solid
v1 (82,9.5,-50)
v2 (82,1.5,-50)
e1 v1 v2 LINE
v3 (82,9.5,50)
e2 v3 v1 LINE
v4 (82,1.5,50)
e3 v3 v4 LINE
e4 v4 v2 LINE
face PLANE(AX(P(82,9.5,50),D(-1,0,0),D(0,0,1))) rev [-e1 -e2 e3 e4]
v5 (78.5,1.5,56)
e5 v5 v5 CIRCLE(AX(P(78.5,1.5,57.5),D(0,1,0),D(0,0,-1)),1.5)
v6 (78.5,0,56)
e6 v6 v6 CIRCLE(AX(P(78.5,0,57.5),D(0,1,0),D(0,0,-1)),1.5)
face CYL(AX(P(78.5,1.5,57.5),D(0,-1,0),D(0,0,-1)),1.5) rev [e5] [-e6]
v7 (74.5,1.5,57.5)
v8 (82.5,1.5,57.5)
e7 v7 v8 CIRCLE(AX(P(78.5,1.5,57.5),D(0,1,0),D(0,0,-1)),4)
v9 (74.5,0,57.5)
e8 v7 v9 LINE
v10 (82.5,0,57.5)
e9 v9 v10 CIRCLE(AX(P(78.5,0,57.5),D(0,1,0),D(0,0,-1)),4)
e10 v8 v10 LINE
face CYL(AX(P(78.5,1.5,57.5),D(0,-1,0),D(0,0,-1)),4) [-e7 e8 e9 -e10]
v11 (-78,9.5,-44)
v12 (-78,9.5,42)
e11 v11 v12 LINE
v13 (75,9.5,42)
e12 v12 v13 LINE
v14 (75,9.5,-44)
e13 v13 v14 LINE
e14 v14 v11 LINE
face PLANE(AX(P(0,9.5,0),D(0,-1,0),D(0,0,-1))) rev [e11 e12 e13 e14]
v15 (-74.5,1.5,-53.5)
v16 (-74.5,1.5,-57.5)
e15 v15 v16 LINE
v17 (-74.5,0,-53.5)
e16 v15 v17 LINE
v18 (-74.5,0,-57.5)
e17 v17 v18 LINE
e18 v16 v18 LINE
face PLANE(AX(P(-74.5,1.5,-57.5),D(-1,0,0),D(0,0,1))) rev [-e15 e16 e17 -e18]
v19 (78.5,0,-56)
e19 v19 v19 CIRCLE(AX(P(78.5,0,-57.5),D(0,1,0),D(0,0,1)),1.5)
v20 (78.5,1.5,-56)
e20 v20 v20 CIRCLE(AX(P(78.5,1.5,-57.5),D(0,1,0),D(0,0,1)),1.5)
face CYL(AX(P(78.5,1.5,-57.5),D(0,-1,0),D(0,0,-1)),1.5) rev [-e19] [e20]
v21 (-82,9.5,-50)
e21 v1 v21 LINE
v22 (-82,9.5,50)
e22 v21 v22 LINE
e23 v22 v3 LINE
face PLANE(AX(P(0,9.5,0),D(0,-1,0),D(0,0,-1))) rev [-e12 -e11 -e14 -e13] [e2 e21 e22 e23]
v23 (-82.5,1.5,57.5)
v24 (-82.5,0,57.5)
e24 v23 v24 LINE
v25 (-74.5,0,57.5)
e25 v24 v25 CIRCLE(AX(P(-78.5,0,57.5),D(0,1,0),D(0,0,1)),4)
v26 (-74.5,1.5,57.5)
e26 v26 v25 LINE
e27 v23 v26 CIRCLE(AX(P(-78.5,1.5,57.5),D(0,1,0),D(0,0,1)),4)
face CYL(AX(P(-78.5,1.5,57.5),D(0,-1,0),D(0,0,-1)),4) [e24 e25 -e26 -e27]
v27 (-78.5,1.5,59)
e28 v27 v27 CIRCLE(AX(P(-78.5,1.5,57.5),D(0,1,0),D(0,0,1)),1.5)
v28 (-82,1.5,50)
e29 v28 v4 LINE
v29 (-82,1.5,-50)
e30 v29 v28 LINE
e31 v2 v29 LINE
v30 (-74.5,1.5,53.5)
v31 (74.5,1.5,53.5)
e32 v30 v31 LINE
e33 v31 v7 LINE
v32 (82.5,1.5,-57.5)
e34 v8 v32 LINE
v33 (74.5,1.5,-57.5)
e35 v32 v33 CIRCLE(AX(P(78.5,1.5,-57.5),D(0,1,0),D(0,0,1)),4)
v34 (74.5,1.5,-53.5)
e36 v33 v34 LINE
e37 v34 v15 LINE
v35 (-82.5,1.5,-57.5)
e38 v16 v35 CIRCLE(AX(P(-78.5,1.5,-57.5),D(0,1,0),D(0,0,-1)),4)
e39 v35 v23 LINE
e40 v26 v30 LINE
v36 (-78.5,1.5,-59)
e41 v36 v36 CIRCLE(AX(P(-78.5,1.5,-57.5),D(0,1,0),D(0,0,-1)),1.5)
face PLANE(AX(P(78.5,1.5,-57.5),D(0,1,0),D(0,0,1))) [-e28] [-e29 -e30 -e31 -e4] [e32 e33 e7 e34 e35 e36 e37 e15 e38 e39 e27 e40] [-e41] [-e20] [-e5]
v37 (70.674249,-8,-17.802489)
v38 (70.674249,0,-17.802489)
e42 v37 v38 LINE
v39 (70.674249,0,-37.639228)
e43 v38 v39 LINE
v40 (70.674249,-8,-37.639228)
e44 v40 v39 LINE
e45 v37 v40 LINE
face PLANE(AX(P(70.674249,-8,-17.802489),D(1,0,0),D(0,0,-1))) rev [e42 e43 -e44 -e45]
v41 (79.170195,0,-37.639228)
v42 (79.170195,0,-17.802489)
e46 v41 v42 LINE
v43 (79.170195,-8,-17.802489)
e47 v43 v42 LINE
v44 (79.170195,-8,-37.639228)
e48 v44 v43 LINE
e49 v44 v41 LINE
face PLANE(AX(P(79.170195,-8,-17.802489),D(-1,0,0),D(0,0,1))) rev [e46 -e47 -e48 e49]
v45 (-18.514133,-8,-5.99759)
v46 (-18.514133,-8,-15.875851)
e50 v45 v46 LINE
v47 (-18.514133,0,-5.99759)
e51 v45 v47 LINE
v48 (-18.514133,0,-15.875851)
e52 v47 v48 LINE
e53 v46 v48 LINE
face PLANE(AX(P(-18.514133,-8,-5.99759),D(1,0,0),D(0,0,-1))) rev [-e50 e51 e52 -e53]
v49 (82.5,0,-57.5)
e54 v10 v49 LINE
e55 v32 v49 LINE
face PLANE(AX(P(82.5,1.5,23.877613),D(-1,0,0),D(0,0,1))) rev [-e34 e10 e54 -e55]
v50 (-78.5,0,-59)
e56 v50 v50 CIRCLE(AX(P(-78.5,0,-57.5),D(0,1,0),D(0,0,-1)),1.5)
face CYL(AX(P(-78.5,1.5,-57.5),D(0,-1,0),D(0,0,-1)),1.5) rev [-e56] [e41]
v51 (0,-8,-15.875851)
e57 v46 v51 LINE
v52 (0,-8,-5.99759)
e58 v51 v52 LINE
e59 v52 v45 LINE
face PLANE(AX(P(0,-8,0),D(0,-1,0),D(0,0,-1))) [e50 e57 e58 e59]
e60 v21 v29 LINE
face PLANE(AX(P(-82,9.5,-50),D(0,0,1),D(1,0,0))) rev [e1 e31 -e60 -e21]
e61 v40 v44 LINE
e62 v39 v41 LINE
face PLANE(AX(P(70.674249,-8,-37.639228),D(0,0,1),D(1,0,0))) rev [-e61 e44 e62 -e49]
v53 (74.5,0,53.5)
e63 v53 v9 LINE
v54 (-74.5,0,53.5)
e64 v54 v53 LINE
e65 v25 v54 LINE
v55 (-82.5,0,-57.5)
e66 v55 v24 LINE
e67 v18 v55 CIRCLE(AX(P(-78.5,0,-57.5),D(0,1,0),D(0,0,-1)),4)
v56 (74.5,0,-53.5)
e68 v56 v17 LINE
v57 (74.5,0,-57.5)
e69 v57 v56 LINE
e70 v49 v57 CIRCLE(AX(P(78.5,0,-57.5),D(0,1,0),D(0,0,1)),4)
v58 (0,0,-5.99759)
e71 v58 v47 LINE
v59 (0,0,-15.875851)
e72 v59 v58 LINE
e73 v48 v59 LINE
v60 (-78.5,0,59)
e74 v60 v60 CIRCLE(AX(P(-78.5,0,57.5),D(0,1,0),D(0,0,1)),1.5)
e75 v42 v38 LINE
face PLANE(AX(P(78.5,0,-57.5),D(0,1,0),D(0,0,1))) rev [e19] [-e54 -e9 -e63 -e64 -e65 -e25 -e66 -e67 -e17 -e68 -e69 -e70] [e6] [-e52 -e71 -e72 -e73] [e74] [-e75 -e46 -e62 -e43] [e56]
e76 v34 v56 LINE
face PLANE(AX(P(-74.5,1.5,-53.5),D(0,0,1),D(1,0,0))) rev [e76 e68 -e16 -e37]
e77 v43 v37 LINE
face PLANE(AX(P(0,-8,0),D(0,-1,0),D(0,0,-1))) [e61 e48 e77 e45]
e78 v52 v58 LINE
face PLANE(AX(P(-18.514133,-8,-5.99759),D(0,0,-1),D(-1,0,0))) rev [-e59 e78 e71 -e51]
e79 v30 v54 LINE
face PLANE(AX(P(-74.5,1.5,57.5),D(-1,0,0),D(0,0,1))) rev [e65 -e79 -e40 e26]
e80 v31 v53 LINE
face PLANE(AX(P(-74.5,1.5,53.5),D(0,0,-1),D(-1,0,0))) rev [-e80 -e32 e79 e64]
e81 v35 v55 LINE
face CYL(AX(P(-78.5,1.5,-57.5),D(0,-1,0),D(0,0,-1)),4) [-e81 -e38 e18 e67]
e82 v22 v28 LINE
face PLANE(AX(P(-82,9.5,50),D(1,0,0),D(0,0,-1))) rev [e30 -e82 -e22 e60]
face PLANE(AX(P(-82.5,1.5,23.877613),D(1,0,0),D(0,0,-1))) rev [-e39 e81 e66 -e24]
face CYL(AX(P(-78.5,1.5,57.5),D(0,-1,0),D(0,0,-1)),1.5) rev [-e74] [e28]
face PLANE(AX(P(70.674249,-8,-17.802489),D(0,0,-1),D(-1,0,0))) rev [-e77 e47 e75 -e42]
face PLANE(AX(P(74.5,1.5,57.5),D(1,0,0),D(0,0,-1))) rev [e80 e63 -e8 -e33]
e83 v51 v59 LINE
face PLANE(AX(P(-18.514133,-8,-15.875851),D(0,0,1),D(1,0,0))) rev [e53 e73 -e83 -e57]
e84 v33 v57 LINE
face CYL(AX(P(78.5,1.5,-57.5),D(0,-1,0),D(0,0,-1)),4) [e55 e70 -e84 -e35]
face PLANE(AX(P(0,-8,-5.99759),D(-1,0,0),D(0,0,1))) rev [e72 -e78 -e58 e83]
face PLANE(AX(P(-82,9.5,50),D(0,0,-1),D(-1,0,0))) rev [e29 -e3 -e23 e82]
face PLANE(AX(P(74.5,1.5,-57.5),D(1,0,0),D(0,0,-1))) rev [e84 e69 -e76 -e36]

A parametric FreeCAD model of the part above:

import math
import FreeCAD as App
import Part
import Sketcher
from FreeCAD import Vector
Q = App.Units.Quantity

doc = App.newDocument("Part")
body = doc.addObject("PartDesign::Body", "Body")

sketch1 = doc.addObject("Sketcher::SketchObject", "Sketch")
body.addObject(sketch1)
sketch1.AttachmentSupport = (doc.XZ_Plane, [""])
sketch1.MapMode = "FlatFace"
sketch1.addGeometry(Part.LineSegment(Vector(-74.5, 53.5, 0), Vector(74.5, 53.5, 0)), False)
sketch1.addGeometry(Part.LineSegment(Vector(74.5, 53.5, 0), Vector(74.5, 57.5, 0)), False)
sketch1.addGeometry(Part.ArcOfCircle(Part.Circle(Vector(78.5, 57.5, 0), Vector(0, 0, 1), 4), math.radians(0), math.radians(180)), False)
sketch1.addGeometry(Part.LineSegment(Vector(82.5, 57.5, 0), Vector(82.5, -57.5, 0)), False)
sketch1.addGeometry(Part.ArcOfCircle(Part.Circle(Vector(78.5, -57.5, 0), Vector(0, 0, 1), 4), math.radians(180), math.radians(360)), False)
sketch1.addGeometry(Part.LineSegment(Vector(74.5, -57.5, 0), Vector(74.5, -53.5, 0)), False)
sketch1.addGeometry(Part.LineSegment(Vector(74.5, -53.5, 0), Vector(-74.5, -53.5, 0)), False)
sketch1.addGeometry(Part.LineSegment(Vector(-74.5, -53.5, 0), Vector(-74.5, -57.5, 0)), False)
sketch1.addGeometry(Part.ArcOfCircle(Part.Circle(Vector(-78.5, -57.5, 0), Vector(0, 0, 1), 4), math.radians(180), math.radians(360)), False)
sketch1.addGeometry(Part.LineSegment(Vector(-82.5, -57.5, 0), Vector(-82.5, 57.5, 0)), False)
sketch1.addGeometry(Part.ArcOfCircle(Part.Circle(Vector(-78.5, 57.5, 0), Vector(0, 0, 1), 4), math.radians(0), math.radians(180)), False)
sketch1.addGeometry(Part.LineSegment(Vector(-74.5, 57.5, 0), Vector(-74.5, 53.5, 0)), False)
sketch1.addGeometry(Part.Circle(Vector(-78.5, 57.5, 0), Vector(0, 0, 1), 1.5), False)
sketch1.addGeometry(Part.Circle(Vector(78.5, 57.5, 0), Vector(0, 0, 1), 1.5), False)
sketch1.addGeometry(Part.Circle(Vector(-78.5, -57.5, 0), Vector(0, 0, 1), 1.5), False)
sketch1.addGeometry(Part.Circle(Vector(78.5, -57.5, 0), Vector(0, 0, 1), 1.5), False)
sketch1.addConstraint(Sketcher.Constraint("Coincident", 0, 2, 1, 1))
sketch1.addConstraint(Sketcher.Constraint("Tangent", 1, 2, 2, 2))
sketch1.addConstraint(Sketcher.Constraint("Tangent", 2, 1, 3, 1))
sketch1.addConstraint(Sketcher.Constraint("Tangent", 3, 2, 4, 2))
sketch1.addConstraint(Sketcher.Constraint("Tangent", 4, 1, 5, 1))
sketch1.addConstraint(Sketcher.Constraint("Coincident", 5, 2, 6, 1))
sketch1.addConstraint(Sketcher.Constraint("Coincident", 6, 2, 7, 1))
sketch1.addConstraint(Sketcher.Constraint("Tangent", 7, 2, 8, 2))
sketch1.addConstraint(Sketcher.Constraint("Tangent", 8, 1, 9, 1))
sketch1.addConstraint(Sketcher.Constraint("Tangent", 9, 2, 10, 2))
sketch1.addConstraint(Sketcher.Constraint("Tangent", 10, 1, 11, 1))
sketch1.addConstraint(Sketcher.Constraint("Coincident", 11, 2, 0, 1))
sketch1.addConstraint(Sketcher.Constraint("Horizontal", 0))
sketch1.addConstraint(Sketcher.Constraint("Vertical", 1))
sketch1.addConstraint(Sketcher.Constraint("Vertical", 3))
sketch1.addConstraint(Sketcher.Constraint("Vertical", 5))
sketch1.addConstraint(Sketcher.Constraint("Horizontal", 6))
sketch1.addConstraint(Sketcher.Constraint("Vertical", 7))
sketch1.addConstraint(Sketcher.Constraint("Vertical", 9))
sketch1.addConstraint(Sketcher.Constraint("Vertical", 11))
sketch1.addConstraint(Sketcher.Constraint("Coincident", 12, 3, 10, 3))
sketch1.addConstraint(Sketcher.Constraint("Coincident", 13, 3, 2, 3))
sketch1.addConstraint(Sketcher.Constraint("Coincident", 14, 3, 8, 3))
sketch1.addConstraint(Sketcher.Constraint("Coincident", 15, 3, 4, 3))
sketch1.addConstraint(Sketcher.Constraint("Equal", 2, 4))
sketch1.addConstraint(Sketcher.Constraint("Equal", 4, 8))
sketch1.addConstraint(Sketcher.Constraint("Equal", 8, 10))
sketch1.addConstraint(Sketcher.Constraint("Equal", 12, 13))
sketch1.addConstraint(Sketcher.Constraint("Equal", 13, 14))
sketch1.addConstraint(Sketcher.Constraint("Equal", 14, 15))
sketch1.addConstraint(Sketcher.Constraint("Symmetric", 2, 3, 8, 3, -1, 1))
sketch1.addConstraint(Sketcher.Constraint("Horizontal", 4, 3, 8, 3))
sketch1.addConstraint(Sketcher.Constraint("Horizontal", 2, 3, 10, 3))
sketch1.addConstraint(Sketcher.Constraint("Equal", 1, 5))
sketch1.addConstraint(Sketcher.Constraint("Diameter", 12, Q("3 mm")))
sketch1.addConstraint(Sketcher.Constraint("Radius", 2, Q("4 mm")))
sketch1.addConstraint(Sketcher.Constraint("DistanceX", 0, 1, 0, 2, Q("149 mm")))
sketch1.addConstraint(Sketcher.Constraint("DistanceY", 1, 1, 1, 2, Q("4 mm")))
sketch1.addConstraint(Sketcher.Constraint("DistanceY", 3, 2, 3, 1, Q("115 mm")))
pad1 = doc.addObject("PartDesign::Pad", "Pad")
body.addObject(pad1)
pad1.Profile = sketch1
pad1.Length = 1.5
pad1.Reversed = True

sketch2 = doc.addObject("Sketcher::SketchObject", "Sketch001")
body.addObject(sketch2)
sketch2.AttachmentSupport = (doc.XZ_Plane, [""])
sketch2.MapMode = "FlatFace"
sketch2.addGeometry(Part.LineSegment(Vector(71, -18, 0), Vector(71, -38, 0)), False)
sketch2.addGeometry(Part.LineSegment(Vector(71, -38, 0), Vector(79, -38, 0)), False)
sketch2.addGeometry(Part.LineSegment(Vector(79, -38, 0), Vector(79, -18, 0)), False)
sketch2.addGeometry(Part.LineSegment(Vector(79, -18, 0), Vector(71, -18, 0)), False)
sketch2.addGeometry(Part.LineSegment(Vector(-19, -6, 0), Vector(-19, -16, 0)), False)
sketch2.addGeometry(Part.LineSegment(Vector(-19, -16, 0), Vector(0, -16, 0)), False)
sketch2.addGeometry(Part.LineSegment(Vector(0, -16, 0), Vector(0, -6, 0)), False)
sketch2.addGeometry(Part.LineSegment(Vector(0, -6, 0), Vector(-19, -6, 0)), False)
sketch2.addConstraint(Sketcher.Constraint("Coincident", 0, 2, 1, 1))
sketch2.addConstraint(Sketcher.Constraint("Coincident", 1, 2, 2, 1))
sketch2.addConstraint(Sketcher.Constraint("Coincident", 2, 2, 3, 1))
sketch2.addConstraint(Sketcher.Constraint("Coincident", 3, 2, 0, 1))
sketch2.addConstraint(Sketcher.Constraint("Coincident", 4, 2, 5, 1))
sketch2.addConstraint(Sketcher.Constraint("Coincident", 5, 2, 6, 1))
sketch2.addConstraint(Sketcher.Constraint("Coincident", 6, 2, 7, 1))
sketch2.addConstraint(Sketcher.Constraint("Coincident", 7, 2, 4, 1))
sketch2.addConstraint(Sketcher.Constraint("Vertical", 0))
sketch2.addConstraint(Sketcher.Constraint("Horizontal", 1))
sketch2.addConstraint(Sketcher.Constraint("Vertical", 2))
sketch2.addConstraint(Sketcher.Constraint("Horizontal", 3))
sketch2.addConstraint(Sketcher.Constraint("Vertical", 4))
sketch2.addConstraint(Sketcher.Constraint("Horizontal", 5))
sketch2.addConstraint(Sketcher.Constraint("Vertical", 6))
sketch2.addConstraint(Sketcher.Constraint("Horizontal", 7))
sketch2.addConstraint(Sketcher.Constraint("PointOnObject", 5, 2, -2))
sketch2.addConstraint(Sketcher.Constraint("DistanceY", 0, 2, 0, 1, Q("19.836739 mm")))
sketch2.addConstraint(Sketcher.Constraint("DistanceY", 4, 2, 4, 1, Q("9.878261 mm")))
sketch2.addConstraint(Sketcher.Constraint("DistanceY", 3, 2, 6, 2, Q("11.804899 mm")))
sketch2.addConstraint(Sketcher.Constraint("DistanceX", 1, 1, 1, 2, Q("8.495945 mm")))
sketch2.addConstraint(Sketcher.Constraint("DistanceX", 5, 1, 5, 2, Q("18.514133 mm")))
sketch2.addConstraint(Sketcher.Constraint("DistanceX", -1, 1, 0, 2, Q("70.674249 mm")))
sketch2.addConstraint(Sketcher.Constraint("DistanceY", 2, 2, -1, 1, Q("17.802489 mm")))
pad2 = doc.addObject("PartDesign::Pad", "Pad001")
body.addObject(pad2)
pad2.Profile = sketch2
pad2.Length = 8

sketch3 = doc.addObject("Sketcher::SketchObject", "Sketch002")
body.addObject(sketch3)
sketch3.AttachmentSupport = (doc.XZ_Plane, [""])
sketch3.MapMode = "FlatFace"
sketch3.AttachmentOffset = App.Placement(Vector(0, 0, -1.5), App.Rotation())
sketch3.addGeometry(Part.LineSegment(Vector(-82, -50, 0), Vector(-82, 50, 0)), False)
sketch3.addGeometry(Part.LineSegment(Vector(-82, 50, 0), Vector(82, 50, 0)), False)
sketch3.addGeometry(Part.LineSegment(Vector(82, 50, 0), Vector(82, -50, 0)), False)
sketch3.addGeometry(Part.LineSegment(Vector(82, -50, 0), Vector(-82, -50, 0)), False)
sketch3.addConstraint(Sketcher.Constraint("Coincident", 0, 2, 1, 1))
sketch3.addConstraint(Sketcher.Constraint("Coincident", 1, 2, 2, 1))
sketch3.addConstraint(Sketcher.Constraint("Coincident", 2, 2, 3, 1))
sketch3.addConstraint(Sketcher.Constraint("Coincident", 3, 2, 0, 1))
sketch3.addConstraint(Sketcher.Constraint("Vertical", 0))
sketch3.addConstraint(Sketcher.Constraint("Horizontal", 1))
sketch3.addConstraint(Sketcher.Constraint("Vertical", 2))
sketch3.addConstraint(Sketcher.Constraint("Horizontal", 3))
sketch3.addConstraint(Sketcher.Constraint("Symmetric", 0, 2, 2, 2, -1, 1))
sketch3.addConstraint(Sketcher.Constraint("DistanceX", 1, 1, 1, 2, Q("164 mm")))
sketch3.addConstraint(Sketcher.Constraint("DistanceY", 0, 1, 0, 2, Q("100 mm")))
pad3 = doc.addObject("PartDesign::Pad", "Pad002")
body.addObject(pad3)
pad3.Profile = sketch3
pad3.Length = 8
pad3.Reversed = True

doc.recompute()
